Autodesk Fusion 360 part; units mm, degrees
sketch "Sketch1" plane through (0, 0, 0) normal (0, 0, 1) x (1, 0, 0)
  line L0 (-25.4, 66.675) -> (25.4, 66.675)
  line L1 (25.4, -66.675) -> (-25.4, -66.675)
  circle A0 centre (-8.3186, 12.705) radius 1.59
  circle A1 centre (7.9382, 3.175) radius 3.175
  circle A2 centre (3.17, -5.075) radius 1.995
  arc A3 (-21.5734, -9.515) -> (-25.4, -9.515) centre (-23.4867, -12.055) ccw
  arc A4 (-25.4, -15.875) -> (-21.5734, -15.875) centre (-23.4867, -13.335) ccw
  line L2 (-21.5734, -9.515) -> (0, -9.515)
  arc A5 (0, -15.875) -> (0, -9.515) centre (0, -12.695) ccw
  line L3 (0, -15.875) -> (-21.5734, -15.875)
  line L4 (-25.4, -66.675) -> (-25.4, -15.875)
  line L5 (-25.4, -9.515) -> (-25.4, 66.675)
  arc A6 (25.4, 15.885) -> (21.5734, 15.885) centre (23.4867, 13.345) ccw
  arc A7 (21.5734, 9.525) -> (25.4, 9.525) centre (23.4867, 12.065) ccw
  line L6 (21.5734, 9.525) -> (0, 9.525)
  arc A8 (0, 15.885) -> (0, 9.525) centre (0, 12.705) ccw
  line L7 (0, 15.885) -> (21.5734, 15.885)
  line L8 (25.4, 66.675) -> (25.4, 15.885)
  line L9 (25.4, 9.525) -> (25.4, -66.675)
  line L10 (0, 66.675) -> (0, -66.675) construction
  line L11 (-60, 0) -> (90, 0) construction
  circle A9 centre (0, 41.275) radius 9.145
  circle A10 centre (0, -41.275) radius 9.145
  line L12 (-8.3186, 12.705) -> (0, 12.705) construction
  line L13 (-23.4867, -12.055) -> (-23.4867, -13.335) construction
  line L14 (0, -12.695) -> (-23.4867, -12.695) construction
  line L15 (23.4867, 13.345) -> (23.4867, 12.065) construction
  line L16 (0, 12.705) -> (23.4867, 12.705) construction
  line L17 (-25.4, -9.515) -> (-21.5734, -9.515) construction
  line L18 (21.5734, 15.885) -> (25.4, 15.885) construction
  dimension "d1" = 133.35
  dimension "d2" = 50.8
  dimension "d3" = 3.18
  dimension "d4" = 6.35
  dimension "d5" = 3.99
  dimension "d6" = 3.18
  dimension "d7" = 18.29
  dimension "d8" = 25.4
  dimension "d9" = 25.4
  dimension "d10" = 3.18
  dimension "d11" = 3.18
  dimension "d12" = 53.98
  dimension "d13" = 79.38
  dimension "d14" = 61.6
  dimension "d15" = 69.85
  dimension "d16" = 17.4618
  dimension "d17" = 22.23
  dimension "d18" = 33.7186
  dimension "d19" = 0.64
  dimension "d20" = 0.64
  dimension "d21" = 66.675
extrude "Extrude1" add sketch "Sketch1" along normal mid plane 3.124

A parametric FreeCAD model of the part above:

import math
import FreeCAD as App
import Part
import Sketcher
Q = App.Units.Quantity

doc = App.newDocument("Part")
params = doc.addObject("Spreadsheet::Sheet", "Params")
for row, (alias, value) in enumerate([
    ("sketch1_diameter", "0.25 in"),
    ("sketch1_width", "2 in"),
    ("pad1_length", "0.1229921 in"),
], start=1):
    params.set(f"A{row}", alias)
    params.set(f"B{row}", "=" + value)
    params.setAlias(f"B{row}", alias)

body = doc.addObject("PartDesign::Body", "Body")

# Sketch on XY plane
sketch1 = body.newObject("Sketcher::SketchObject", "Sketch")
sketch1.AttachmentSupport = (doc.getObject("XY_Plane"), [""])
sketch1.MapMode = "FlatFace"
sketch1.addGeometry([
    Part.LineSegment(App.Vector(25.4, 66.7, 0), App.Vector(-25.4, 66.7, 0)),  # 0
    Part.LineSegment(App.Vector(-25.4, 66.7, 0), App.Vector(-25.4, -9.5, 0)),  # 1
    Part.ArcOfCircle(Part.Circle(App.Vector(-23.5, -12.1, 0), App.Vector(0, 0, 1), 3.2), math.radians(53), math.radians(127)),  # 2
    Part.LineSegment(App.Vector(-21.6, -9.5, 0), App.Vector(0, -9.5, 0)),  # 3
    Part.ArcOfCircle(Part.Circle(App.Vector(0, -12.7, 0), App.Vector(0, 0, 1), 3.2), math.radians(-90), math.radians(90)),  # 4
    Part.LineSegment(App.Vector(0, -15.9, 0), App.Vector(-21.6, -15.9, 0)),  # 5
    Part.ArcOfCircle(Part.Circle(App.Vector(-23.5, -13.3, 0), App.Vector(0, 0, 1), 3.2), math.radians(-127), math.radians(-53)),  # 6
    Part.LineSegment(App.Vector(-25.4, -15.9, 0), App.Vector(-25.4, -66.7, 0)),  # 7
    Part.LineSegment(App.Vector(-25.4, -66.7, 0), App.Vector(25.4, -66.7, 0)),  # 8
    Part.LineSegment(App.Vector(25.4, -66.7, 0), App.Vector(25.4, 9.5, 0)),  # 9
    Part.ArcOfCircle(Part.Circle(App.Vector(23.5, 12.1, 0), App.Vector(0, 0, 1), 3.2), math.radians(-127), math.radians(-53)),  # 10
    Part.LineSegment(App.Vector(21.6, 9.5, 0), App.Vector(0, 9.5, 0)),  # 11
    Part.ArcOfCircle(Part.Circle(App.Vector(0, 12.7, 0), App.Vector(0, 0, 1), 3.2), math.radians(90), math.radians(270)),  # 12
    Part.LineSegment(App.Vector(0, 15.9, 0), App.Vector(21.6, 15.9, 0)),  # 13
    Part.ArcOfCircle(Part.Circle(App.Vector(23.5, 13.3, 0), App.Vector(0, 0, 1), 3.2), math.radians(53), math.radians(127)),  # 14
    Part.LineSegment(App.Vector(25.4, 15.9, 0), App.Vector(25.4, 66.7, 0)),  # 15
    Part.Circle(App.Vector(0, -41.3, 0), App.Vector(0, 0, 1), 9.1),  # 16
    Part.Circle(App.Vector(3.2, -5.1, 0), App.Vector(0, 0, 1), 2),  # 17
    Part.Circle(App.Vector(-8.3, 12.7, 0), App.Vector(0, 0, 1), 1.6),  # 18
    Part.Circle(App.Vector(0, 41.3, 0), App.Vector(0, 0, 1), 9.1),  # 19
    Part.Circle(App.Vector(7.9, 3.2, 0), App.Vector(0, 0, 1), 3.2),  # 20
], False)
sketch1.addConstraint([
    Sketcher.Constraint("Coincident", 0, 2, 1, 1),
    Sketcher.Constraint("Coincident", 1, 2, 2, 2),
    Sketcher.Constraint("Coincident", 2, 1, 3, 1),
    Sketcher.Constraint("Tangent", 3, 2, 4, 2),
    Sketcher.Constraint("Tangent", 4, 1, 5, 1),
    Sketcher.Constraint("Coincident", 5, 2, 6, 2),
    Sketcher.Constraint("Coincident", 6, 1, 7, 1),
    Sketcher.Constraint("Coincident", 7, 2, 8, 1),
    Sketcher.Constraint("Coincident", 8, 2, 9, 1),
    Sketcher.Constraint("Coincident", 9, 2, 10, 2),
    Sketcher.Constraint("Coincident", 10, 1, 11, 1),
    Sketcher.Constraint("Tangent", 11, 2, 12, 2),
    Sketcher.Constraint("Tangent", 12, 1, 13, 1),
    Sketcher.Constraint("Coincident", 13, 2, 14, 2),
    Sketcher.Constraint("Coincident", 14, 1, 15, 1),
    Sketcher.Constraint("Coincident", 15, 2, 0, 1),
    Sketcher.Constraint("Horizontal", 0),
    Sketcher.Constraint("Vertical", 1),
    Sketcher.Constraint("Horizontal", 3),
    Sketcher.Constraint("Horizontal", 5),
    Sketcher.Constraint("Vertical", 7),
    Sketcher.Constraint("Horizontal", 8),
    Sketcher.Constraint("Vertical", 9),
    Sketcher.Constraint("Horizontal", 11),
    Sketcher.Constraint("Horizontal", 13),
    Sketcher.Constraint("Vertical", 15),
    Sketcher.Constraint("Equal", 2, 4),
    Sketcher.Constraint("Equal", 4, 6),
    Sketcher.Constraint("Equal", 6, 10),
    Sketcher.Constraint("Equal", 10, 12),
    Sketcher.Constraint("Equal", 12, 14),
    Sketcher.Constraint("Equal", 16, 19),
    Sketcher.Constraint("Symmetric", 16, 3, 19, 3, -1, 1),
    Sketcher.Constraint("Symmetric", 0, 2, 8, 2, -1, 1),
    Sketcher.Constraint("PointOnObject", 4, 3, -2),
    Sketcher.Constraint("PointOnObject", 12, 3, -2),
    Sketcher.Constraint("PointOnObject", 16, 3, -2),
    Sketcher.Constraint("Horizontal", 12, 3, 18, 3),
    Sketcher.Constraint("Horizontal", 1, 2, 2, 1),
    Sketcher.Constraint("Horizontal", 5, 2, 6, 1),
    Sketcher.Constraint("Horizontal", 9, 2, 10, 1),
    Sketcher.Constraint("Horizontal", 13, 2, 14, 1),
    Sketcher.Constraint("Vertical", 2, 3, 6, 3),
    Sketcher.Constraint("Vertical", 10, 3, 14, 3),
    Sketcher.Constraint("Vertical", 2, 1, 5, 2),
    Sketcher.Constraint("Vertical", 10, 1, 13, 2),
    Sketcher.Constraint("Equal", 5, 11),
    Sketcher.Constraint("Equal", 8, 7),
    Sketcher.Constraint("Diameter", 20, Q("0.25 in")),
    Sketcher.Constraint("DistanceX", 0, 2, 0, 1, Q("2 in")),
    Sketcher.Constraint("DistanceY", 6, 3, 10, 3, Q("1 in")),
    Sketcher.Constraint("DistanceY", 19, 3, 0, 2, Q("1 in")),
    Sketcher.Constraint("Diameter", 18, Q("0.1252 in")),
    Sketcher.Constraint("Radius", 2, Q("0.1252 in")),
    Sketcher.Constraint("Diameter", 16, 18.29),
    Sketcher.Constraint("Diameter", 17, 3.99),
    Sketcher.Constraint("DistanceY", 20, 3, 9, 2, Q("0.25 in")),
    Sketcher.Constraint("DistanceY", -1, 1, 0, 2, Q("2.625 in")),
    Sketcher.Constraint("DistanceY", 4, 3, 2, 3, Q("0.0252 in")),
    Sketcher.Constraint("DistanceY", 4, 3, 17, 3, Q("0.3 in")),
    Sketcher.Constraint("DistanceX", 17, 3, 9, 2, Q("0.8752 in")),
    Sketcher.Constraint("DistanceX", 20, 3, 9, 2, 17.4618),
    Sketcher.Constraint("DistanceX", 18, 3, -1, 1, Q("0.3275 in")),
])
sketch1.setExpression("Constraints[48]", "Params.sketch1_diameter")
sketch1.setExpression("Constraints[49]", "Params.sketch1_width")
pad1 = body.newObject("PartDesign::Pad", "Pad")
pad1.Profile = sketch1
pad1.setExpression("Length", "Params.pad1_length")
pad1.Midplane = True

doc.recompute()
